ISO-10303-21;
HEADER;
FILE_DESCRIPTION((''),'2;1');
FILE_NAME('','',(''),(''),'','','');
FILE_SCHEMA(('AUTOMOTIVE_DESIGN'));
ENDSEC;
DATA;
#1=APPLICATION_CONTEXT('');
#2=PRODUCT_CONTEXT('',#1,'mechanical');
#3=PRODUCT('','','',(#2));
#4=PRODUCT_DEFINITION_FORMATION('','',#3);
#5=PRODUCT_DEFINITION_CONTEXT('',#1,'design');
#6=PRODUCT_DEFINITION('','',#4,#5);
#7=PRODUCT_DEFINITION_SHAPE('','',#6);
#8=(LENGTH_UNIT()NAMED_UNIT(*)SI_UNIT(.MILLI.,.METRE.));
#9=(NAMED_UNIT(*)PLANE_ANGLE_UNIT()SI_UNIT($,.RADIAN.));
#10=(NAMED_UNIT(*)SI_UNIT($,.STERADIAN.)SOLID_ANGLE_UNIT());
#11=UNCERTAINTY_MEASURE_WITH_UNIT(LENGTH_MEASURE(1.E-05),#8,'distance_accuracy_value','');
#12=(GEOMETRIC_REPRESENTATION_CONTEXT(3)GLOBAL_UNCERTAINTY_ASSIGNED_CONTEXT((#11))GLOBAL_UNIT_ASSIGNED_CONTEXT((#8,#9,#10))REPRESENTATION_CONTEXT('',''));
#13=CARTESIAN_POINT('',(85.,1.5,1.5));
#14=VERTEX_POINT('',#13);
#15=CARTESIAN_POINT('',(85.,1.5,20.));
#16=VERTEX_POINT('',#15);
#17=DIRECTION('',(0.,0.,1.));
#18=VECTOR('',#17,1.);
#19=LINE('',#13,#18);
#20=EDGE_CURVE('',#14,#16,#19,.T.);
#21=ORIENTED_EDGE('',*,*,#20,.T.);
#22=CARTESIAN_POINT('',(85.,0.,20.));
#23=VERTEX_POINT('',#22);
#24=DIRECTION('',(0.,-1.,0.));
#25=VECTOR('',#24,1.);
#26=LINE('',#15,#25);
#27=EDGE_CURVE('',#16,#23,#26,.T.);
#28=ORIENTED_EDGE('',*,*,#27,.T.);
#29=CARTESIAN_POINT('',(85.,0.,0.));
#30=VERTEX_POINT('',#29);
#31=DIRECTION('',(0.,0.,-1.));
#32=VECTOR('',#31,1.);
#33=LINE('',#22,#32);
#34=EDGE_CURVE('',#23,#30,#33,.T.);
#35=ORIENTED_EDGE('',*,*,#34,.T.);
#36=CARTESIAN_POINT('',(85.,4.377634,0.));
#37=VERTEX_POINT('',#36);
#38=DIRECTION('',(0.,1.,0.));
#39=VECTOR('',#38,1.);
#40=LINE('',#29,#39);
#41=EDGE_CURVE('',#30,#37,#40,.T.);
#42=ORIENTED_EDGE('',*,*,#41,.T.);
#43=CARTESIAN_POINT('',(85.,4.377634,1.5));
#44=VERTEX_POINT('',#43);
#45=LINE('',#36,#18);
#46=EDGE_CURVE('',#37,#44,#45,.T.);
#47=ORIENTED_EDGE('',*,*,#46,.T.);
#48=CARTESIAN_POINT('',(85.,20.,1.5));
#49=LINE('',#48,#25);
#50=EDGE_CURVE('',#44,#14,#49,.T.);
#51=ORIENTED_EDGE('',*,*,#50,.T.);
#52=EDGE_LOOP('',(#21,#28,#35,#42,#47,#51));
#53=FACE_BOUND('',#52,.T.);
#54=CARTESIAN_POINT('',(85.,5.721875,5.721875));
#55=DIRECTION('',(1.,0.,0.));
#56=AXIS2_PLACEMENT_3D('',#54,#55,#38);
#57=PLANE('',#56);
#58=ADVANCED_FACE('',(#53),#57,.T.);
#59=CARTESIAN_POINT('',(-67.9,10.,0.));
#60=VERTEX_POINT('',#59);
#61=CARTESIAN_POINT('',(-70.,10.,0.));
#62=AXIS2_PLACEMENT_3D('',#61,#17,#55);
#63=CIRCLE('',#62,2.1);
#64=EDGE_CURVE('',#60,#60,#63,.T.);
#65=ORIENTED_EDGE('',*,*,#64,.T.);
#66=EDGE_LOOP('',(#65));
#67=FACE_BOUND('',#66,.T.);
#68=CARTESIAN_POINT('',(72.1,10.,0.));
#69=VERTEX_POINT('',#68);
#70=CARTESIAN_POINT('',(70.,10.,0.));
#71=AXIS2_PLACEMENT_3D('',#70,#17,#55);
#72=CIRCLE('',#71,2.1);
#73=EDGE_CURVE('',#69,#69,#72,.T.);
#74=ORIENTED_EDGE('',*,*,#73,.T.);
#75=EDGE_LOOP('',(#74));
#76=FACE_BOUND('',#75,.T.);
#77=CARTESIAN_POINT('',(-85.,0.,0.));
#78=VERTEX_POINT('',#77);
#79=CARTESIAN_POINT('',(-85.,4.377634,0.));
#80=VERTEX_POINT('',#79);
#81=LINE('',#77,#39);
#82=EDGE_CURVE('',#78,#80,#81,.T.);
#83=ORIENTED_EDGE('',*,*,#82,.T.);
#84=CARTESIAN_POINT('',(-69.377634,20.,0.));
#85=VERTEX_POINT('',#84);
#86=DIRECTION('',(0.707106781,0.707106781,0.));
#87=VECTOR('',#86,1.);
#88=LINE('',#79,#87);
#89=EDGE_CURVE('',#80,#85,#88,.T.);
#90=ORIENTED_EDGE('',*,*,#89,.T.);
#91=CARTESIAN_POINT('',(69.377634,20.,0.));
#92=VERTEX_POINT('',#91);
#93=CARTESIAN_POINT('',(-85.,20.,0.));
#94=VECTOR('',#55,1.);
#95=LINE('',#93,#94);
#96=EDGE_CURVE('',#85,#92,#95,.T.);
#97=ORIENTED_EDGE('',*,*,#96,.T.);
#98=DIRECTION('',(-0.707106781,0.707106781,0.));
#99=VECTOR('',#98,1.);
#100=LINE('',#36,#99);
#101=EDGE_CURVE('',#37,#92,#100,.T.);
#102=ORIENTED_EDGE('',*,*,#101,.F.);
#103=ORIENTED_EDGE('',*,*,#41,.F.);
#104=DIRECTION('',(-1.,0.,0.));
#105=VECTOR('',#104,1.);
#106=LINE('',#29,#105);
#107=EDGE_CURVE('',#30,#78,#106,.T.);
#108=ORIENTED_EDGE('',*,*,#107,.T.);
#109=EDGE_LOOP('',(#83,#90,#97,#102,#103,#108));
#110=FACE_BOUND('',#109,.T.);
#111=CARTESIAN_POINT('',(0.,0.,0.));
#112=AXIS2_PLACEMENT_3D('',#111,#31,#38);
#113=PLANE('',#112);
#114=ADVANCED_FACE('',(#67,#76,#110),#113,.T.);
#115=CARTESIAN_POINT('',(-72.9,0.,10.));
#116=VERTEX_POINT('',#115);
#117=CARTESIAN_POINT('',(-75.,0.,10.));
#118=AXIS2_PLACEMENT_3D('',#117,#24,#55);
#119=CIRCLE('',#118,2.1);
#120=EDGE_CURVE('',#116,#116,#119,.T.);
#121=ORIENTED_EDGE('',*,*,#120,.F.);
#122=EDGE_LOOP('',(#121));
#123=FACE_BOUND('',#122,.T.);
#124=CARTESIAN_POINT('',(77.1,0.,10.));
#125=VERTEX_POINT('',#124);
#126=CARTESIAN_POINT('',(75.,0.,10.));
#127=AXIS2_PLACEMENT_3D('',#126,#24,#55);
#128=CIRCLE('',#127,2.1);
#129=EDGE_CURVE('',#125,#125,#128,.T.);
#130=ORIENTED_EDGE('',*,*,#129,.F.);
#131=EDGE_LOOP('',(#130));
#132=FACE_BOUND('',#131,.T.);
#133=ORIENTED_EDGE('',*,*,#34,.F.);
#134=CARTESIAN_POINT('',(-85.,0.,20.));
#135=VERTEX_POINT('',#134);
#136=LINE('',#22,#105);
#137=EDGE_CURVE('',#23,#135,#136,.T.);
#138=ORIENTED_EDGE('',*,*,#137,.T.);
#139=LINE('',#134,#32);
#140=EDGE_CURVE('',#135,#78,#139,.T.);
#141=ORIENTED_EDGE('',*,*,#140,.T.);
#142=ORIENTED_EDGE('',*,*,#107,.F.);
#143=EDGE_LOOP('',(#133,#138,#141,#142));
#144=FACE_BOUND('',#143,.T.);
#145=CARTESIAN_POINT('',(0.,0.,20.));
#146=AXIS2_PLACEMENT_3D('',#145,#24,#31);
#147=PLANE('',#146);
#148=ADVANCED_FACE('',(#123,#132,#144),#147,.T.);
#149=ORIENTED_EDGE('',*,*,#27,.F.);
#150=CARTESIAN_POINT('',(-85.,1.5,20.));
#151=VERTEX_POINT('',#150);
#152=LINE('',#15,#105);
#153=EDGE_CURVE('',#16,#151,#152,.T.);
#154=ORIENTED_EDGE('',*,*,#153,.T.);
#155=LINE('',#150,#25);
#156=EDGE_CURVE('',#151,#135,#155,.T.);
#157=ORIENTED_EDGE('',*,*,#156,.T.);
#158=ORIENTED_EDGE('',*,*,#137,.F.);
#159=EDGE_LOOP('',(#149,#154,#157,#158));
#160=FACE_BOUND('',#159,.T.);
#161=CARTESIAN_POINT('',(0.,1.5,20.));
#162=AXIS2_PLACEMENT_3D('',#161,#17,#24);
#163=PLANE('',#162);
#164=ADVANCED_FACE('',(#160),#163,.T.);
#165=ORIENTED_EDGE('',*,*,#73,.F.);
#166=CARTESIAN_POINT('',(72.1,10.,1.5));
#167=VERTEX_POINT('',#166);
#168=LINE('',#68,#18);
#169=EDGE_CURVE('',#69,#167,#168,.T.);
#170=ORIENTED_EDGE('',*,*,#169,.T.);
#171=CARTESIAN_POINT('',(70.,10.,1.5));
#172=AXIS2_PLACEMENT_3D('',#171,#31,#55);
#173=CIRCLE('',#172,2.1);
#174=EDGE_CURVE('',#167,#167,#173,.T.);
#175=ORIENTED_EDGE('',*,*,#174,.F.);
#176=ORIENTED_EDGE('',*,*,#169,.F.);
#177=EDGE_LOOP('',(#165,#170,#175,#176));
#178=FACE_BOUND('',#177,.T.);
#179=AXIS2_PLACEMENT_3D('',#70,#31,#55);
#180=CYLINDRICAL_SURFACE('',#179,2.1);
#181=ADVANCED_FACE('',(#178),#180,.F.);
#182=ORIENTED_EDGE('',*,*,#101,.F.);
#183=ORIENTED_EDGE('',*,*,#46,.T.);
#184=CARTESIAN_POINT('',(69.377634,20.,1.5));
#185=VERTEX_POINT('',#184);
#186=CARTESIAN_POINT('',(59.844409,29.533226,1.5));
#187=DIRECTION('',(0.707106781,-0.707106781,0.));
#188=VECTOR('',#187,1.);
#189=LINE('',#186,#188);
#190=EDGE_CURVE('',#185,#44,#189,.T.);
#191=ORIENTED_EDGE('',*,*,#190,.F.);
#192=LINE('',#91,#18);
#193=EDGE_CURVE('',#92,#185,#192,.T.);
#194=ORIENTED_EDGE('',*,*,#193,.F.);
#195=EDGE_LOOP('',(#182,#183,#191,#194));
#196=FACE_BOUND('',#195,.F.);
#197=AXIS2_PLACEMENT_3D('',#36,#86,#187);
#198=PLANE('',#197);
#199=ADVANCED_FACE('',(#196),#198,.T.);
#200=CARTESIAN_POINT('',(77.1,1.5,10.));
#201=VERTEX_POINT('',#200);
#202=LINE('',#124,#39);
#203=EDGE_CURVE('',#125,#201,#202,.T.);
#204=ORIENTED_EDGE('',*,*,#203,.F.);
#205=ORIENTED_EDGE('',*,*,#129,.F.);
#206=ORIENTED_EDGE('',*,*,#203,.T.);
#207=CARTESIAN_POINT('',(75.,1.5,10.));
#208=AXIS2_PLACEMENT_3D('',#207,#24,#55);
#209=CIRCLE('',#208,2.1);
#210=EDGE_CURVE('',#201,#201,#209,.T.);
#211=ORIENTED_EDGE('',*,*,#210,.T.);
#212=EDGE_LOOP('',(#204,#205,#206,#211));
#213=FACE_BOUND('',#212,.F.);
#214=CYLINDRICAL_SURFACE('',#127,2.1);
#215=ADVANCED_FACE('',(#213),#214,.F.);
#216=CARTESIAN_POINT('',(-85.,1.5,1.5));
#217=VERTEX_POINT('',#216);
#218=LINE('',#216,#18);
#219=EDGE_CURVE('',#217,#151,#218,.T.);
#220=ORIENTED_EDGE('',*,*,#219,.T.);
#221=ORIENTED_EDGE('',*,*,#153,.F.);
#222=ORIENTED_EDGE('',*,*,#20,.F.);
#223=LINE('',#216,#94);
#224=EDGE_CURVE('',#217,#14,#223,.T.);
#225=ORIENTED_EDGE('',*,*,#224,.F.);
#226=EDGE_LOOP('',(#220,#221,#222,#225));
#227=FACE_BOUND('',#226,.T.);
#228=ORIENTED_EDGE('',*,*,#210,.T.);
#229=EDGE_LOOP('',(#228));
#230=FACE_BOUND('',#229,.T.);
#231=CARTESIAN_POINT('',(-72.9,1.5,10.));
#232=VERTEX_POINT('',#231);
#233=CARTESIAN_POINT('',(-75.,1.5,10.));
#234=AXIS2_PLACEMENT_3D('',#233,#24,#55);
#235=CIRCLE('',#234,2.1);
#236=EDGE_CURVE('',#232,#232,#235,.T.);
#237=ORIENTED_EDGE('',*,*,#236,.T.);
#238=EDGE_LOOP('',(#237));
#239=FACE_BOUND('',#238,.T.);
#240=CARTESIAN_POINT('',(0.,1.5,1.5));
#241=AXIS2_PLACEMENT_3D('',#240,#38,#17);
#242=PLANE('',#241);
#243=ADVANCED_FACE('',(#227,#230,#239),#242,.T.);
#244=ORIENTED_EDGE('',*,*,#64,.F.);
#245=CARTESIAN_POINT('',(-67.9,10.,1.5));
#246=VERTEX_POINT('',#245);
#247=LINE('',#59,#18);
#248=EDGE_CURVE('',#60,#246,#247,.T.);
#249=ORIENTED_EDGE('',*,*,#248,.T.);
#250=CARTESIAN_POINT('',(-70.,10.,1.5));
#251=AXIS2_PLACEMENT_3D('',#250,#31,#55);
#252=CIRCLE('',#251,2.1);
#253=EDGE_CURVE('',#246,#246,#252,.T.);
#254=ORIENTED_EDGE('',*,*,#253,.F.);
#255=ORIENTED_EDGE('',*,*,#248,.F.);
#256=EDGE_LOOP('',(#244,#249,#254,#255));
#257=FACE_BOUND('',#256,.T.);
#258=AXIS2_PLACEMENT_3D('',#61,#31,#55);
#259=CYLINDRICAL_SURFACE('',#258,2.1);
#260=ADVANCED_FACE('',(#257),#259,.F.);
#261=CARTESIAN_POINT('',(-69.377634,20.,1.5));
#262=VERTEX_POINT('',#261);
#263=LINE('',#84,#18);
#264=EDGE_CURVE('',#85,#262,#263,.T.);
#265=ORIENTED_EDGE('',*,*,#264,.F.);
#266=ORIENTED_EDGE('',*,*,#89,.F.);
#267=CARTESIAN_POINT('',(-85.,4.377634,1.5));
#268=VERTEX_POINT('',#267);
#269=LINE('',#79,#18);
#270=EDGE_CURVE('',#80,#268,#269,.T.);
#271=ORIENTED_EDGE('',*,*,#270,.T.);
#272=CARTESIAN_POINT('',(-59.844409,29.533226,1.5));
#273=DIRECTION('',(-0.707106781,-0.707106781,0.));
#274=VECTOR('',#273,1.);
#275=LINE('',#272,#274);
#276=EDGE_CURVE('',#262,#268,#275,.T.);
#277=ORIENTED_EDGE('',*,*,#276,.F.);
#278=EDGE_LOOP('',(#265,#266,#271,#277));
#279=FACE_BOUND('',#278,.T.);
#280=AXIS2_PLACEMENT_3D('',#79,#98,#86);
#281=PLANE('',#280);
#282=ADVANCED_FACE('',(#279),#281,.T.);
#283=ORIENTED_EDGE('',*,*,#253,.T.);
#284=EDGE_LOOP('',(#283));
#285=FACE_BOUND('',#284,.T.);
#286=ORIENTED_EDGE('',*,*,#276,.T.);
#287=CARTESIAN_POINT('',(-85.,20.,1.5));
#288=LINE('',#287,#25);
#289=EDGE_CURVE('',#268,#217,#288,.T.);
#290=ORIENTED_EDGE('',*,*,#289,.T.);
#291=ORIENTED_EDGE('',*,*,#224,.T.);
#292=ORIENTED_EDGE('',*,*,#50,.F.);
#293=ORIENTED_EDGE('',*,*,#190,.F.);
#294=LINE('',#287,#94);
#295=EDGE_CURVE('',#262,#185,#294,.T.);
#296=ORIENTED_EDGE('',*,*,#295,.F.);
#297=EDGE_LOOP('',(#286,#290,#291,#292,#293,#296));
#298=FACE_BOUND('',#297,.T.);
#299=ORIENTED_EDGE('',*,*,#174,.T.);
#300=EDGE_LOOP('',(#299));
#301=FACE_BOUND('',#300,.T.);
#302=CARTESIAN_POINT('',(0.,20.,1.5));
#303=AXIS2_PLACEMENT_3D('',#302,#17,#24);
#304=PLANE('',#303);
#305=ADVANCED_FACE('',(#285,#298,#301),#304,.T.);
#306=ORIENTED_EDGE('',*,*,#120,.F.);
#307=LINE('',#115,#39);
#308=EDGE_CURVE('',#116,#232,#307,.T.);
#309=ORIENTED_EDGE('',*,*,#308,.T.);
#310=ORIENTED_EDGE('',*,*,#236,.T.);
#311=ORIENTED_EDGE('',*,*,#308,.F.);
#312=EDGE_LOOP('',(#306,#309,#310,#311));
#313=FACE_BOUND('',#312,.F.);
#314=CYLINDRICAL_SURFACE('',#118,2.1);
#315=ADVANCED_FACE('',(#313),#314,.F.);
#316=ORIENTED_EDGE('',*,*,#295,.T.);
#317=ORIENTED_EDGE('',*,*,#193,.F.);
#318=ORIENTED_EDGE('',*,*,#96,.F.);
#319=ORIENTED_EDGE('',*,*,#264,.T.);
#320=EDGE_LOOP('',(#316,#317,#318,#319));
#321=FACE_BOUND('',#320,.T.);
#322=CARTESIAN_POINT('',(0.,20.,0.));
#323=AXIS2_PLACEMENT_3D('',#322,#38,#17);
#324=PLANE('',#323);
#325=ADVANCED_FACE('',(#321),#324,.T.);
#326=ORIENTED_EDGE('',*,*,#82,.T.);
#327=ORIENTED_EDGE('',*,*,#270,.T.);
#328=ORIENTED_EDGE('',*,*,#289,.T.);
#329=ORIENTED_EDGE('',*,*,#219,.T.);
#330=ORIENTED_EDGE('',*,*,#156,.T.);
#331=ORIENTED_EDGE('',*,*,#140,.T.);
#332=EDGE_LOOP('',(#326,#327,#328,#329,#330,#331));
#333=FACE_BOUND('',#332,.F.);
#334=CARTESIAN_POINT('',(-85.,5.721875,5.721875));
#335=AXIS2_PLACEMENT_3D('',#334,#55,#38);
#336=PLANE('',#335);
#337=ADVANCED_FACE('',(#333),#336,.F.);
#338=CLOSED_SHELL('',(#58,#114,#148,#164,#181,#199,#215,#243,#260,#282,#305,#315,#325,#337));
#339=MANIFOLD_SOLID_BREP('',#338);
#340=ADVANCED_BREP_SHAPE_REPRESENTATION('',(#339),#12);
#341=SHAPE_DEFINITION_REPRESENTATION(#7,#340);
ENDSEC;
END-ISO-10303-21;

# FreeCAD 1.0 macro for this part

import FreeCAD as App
import Part
import Sketcher

V = App.Vector

doc = App.newDocument("Part")
body = doc.addObject("PartDesign::Body", "Body")

# Sketch on YZ plane
sketch1 = body.newObject("Sketcher::SketchObject", "Sketch")
sketch1.AttachmentSupport = (doc.getObject("YZ_Plane"), [""])
sketch1.MapMode = "FlatFace"
sketch1.addGeometry([
    Part.LineSegment(V(0, 0, 0), V(20, 0, 0)),  # 0
    Part.LineSegment(V(20, 0, 0), V(20, 1.5, 0)),  # 1
    Part.LineSegment(V(20, 1.5, 0), V(1.5, 1.5, 0)),  # 2
    Part.LineSegment(V(1.5, 1.5, 0), V(1.5, 20, 0)),  # 3
    Part.LineSegment(V(1.5, 20, 0), V(0, 20, 0)),  # 4
    Part.LineSegment(V(0, 20, 0), V(0, 0, 0)),  # 5
], False)
sketch1.addConstraint([
    Sketcher.Constraint("Coincident", 0, 2, 1, 1),
    Sketcher.Constraint("Coincident", 1, 2, 2, 1),
    Sketcher.Constraint("Coincident", 2, 2, 3, 1),
    Sketcher.Constraint("Coincident", 3, 2, 4, 1),
    Sketcher.Constraint("Coincident", 4, 2, 5, 1),
    Sketcher.Constraint("Coincident", 5, 2, 0, 1),
    Sketcher.Constraint("Horizontal", 0),
    Sketcher.Constraint("Vertical", 1),
    Sketcher.Constraint("Horizontal", 2),
    Sketcher.Constraint("Vertical", 3),
    Sketcher.Constraint("Horizontal", 4),
    Sketcher.Constraint("Vertical", 5),
    Sketcher.Constraint("Coincident", 5, 2, -1, 1),
    Sketcher.Constraint("Equal", 4, 1),
    Sketcher.Constraint("Equal", 2, 3),
    Sketcher.Constraint("DistanceX", 0, 1, 0, 2, 20.0),
    Sketcher.Constraint("DistanceX", 2, 2, 2, 1, 18.5),
])
pad1 = body.newObject("PartDesign::Pad", "Pad")
pad1.Profile = sketch1
pad1.Length = 170
pad1.Midplane = True

# Sketch on XZ plane
sketch2 = body.newObject("Sketcher::SketchObject", "Sketch001")
sketch2.AttachmentSupport = (doc.getObject("XZ_Plane"), [""])
sketch2.MapMode = "FlatFace"
sketch2.addGeometry([
    Part.Circle(V(-75, 10, 0), V(0, 0, 1), 2.1),
    Part.Circle(V(75, 10, 0), V(0, 0, 1), 2.1),
], False)
sketch2.addConstraint([
    Sketcher.Constraint("Equal", 0, 1),
    Sketcher.Constraint("Symmetric", 0, 3, 1, 3, -2),
    Sketcher.Constraint("Diameter", 0, 4.2),
    Sketcher.Constraint("DistanceX", 0, 3, -1, 1, 75.0),
    Sketcher.Constraint("DistanceY", -1, 1, 0, 3, 10.0),
])
pocket1 = body.newObject("PartDesign::Pocket", "Pocket")
pocket1.Profile = sketch2
pocket1.Type = "ThroughAll"

# Sketch on XY plane
sketch3 = body.newObject("Sketcher::SketchObject", "Sketch002")
sketch3.AttachmentSupport = (doc.getObject("XY_Plane"), [""])
sketch3.MapMode = "FlatFace"
sketch3.addGeometry([
    Part.Circle(V(-70, 10, 0), V(0, 0, 1), 2.1),
    Part.Circle(V(70, 10, 0), V(0, 0, 1), 2.1),
], False)
sketch3.addConstraint([
    Sketcher.Constraint("Equal", 0, 1),
    Sketcher.Constraint("Symmetric", 0, 3, 1, 3, -2),
    Sketcher.Constraint("Diameter", 0, 4.2),
    Sketcher.Constraint("DistanceX", 0, 3, -1, 1, 70.0),
    Sketcher.Constraint("DistanceY", -1, 1, 0, 3, 10.0),
])
pocket2 = body.newObject("PartDesign::Pocket", "Pocket001")
pocket2.Profile = sketch3
pocket2.Type = "ThroughAll"
pocket2.Reversed = True

# Sketch on XY plane
sketch4 = body.newObject("Sketcher::SketchObject", "Sketch003")
sketch4.AttachmentSupport = (doc.getObject("XY_Plane"), [""])
sketch4.MapMode = "FlatFace"
sketch4.addGeometry([
    Part.LineSegment(V(-85, 4, 0), V(-49, 40, 0)),
    Part.LineSegment(V(-49, 40, 0), V(-85, 40, 0)),
    Part.LineSegment(V(-85, 40, 0), V(-85, 4, 0)),
], False)
sketch4.addConstraint([
    Sketcher.Constraint("Coincident", 0, 2, 1, 1),
    Sketcher.Constraint("Coincident", 1, 2, 2, 1),
    Sketcher.Constraint("Coincident", 2, 2, 0, 1),
    Sketcher.Constraint("Horizontal", 1),
    Sketcher.Constraint("Vertical", 2),
    Sketcher.Constraint("Equal", 1, 2),
    Sketcher.Constraint("DistanceY", -1, 1, 0, 2, 40.0),
    Sketcher.Constraint("DistanceX", 1, 2, -1, 1, 85.0),
    Sketcher.Constraint("DistanceX", 1, 2, 1, 1, 35.622366),
])
pocket3 = body.newObject("PartDesign::Pocket", "Pocket002")
pocket3.Profile = sketch4
pocket3.Type = "ThroughAll"
pocket3.Reversed = True
doc.recompute()

mirrored = body.newObject("PartDesign::Mirrored", "Mirrored")
mirrored.Originals = [pocket3]
mirrored.MirrorPlane = (doc.getObject("YZ_Plane"), [""])
body.Tip = mirrored

doc.recompute()
